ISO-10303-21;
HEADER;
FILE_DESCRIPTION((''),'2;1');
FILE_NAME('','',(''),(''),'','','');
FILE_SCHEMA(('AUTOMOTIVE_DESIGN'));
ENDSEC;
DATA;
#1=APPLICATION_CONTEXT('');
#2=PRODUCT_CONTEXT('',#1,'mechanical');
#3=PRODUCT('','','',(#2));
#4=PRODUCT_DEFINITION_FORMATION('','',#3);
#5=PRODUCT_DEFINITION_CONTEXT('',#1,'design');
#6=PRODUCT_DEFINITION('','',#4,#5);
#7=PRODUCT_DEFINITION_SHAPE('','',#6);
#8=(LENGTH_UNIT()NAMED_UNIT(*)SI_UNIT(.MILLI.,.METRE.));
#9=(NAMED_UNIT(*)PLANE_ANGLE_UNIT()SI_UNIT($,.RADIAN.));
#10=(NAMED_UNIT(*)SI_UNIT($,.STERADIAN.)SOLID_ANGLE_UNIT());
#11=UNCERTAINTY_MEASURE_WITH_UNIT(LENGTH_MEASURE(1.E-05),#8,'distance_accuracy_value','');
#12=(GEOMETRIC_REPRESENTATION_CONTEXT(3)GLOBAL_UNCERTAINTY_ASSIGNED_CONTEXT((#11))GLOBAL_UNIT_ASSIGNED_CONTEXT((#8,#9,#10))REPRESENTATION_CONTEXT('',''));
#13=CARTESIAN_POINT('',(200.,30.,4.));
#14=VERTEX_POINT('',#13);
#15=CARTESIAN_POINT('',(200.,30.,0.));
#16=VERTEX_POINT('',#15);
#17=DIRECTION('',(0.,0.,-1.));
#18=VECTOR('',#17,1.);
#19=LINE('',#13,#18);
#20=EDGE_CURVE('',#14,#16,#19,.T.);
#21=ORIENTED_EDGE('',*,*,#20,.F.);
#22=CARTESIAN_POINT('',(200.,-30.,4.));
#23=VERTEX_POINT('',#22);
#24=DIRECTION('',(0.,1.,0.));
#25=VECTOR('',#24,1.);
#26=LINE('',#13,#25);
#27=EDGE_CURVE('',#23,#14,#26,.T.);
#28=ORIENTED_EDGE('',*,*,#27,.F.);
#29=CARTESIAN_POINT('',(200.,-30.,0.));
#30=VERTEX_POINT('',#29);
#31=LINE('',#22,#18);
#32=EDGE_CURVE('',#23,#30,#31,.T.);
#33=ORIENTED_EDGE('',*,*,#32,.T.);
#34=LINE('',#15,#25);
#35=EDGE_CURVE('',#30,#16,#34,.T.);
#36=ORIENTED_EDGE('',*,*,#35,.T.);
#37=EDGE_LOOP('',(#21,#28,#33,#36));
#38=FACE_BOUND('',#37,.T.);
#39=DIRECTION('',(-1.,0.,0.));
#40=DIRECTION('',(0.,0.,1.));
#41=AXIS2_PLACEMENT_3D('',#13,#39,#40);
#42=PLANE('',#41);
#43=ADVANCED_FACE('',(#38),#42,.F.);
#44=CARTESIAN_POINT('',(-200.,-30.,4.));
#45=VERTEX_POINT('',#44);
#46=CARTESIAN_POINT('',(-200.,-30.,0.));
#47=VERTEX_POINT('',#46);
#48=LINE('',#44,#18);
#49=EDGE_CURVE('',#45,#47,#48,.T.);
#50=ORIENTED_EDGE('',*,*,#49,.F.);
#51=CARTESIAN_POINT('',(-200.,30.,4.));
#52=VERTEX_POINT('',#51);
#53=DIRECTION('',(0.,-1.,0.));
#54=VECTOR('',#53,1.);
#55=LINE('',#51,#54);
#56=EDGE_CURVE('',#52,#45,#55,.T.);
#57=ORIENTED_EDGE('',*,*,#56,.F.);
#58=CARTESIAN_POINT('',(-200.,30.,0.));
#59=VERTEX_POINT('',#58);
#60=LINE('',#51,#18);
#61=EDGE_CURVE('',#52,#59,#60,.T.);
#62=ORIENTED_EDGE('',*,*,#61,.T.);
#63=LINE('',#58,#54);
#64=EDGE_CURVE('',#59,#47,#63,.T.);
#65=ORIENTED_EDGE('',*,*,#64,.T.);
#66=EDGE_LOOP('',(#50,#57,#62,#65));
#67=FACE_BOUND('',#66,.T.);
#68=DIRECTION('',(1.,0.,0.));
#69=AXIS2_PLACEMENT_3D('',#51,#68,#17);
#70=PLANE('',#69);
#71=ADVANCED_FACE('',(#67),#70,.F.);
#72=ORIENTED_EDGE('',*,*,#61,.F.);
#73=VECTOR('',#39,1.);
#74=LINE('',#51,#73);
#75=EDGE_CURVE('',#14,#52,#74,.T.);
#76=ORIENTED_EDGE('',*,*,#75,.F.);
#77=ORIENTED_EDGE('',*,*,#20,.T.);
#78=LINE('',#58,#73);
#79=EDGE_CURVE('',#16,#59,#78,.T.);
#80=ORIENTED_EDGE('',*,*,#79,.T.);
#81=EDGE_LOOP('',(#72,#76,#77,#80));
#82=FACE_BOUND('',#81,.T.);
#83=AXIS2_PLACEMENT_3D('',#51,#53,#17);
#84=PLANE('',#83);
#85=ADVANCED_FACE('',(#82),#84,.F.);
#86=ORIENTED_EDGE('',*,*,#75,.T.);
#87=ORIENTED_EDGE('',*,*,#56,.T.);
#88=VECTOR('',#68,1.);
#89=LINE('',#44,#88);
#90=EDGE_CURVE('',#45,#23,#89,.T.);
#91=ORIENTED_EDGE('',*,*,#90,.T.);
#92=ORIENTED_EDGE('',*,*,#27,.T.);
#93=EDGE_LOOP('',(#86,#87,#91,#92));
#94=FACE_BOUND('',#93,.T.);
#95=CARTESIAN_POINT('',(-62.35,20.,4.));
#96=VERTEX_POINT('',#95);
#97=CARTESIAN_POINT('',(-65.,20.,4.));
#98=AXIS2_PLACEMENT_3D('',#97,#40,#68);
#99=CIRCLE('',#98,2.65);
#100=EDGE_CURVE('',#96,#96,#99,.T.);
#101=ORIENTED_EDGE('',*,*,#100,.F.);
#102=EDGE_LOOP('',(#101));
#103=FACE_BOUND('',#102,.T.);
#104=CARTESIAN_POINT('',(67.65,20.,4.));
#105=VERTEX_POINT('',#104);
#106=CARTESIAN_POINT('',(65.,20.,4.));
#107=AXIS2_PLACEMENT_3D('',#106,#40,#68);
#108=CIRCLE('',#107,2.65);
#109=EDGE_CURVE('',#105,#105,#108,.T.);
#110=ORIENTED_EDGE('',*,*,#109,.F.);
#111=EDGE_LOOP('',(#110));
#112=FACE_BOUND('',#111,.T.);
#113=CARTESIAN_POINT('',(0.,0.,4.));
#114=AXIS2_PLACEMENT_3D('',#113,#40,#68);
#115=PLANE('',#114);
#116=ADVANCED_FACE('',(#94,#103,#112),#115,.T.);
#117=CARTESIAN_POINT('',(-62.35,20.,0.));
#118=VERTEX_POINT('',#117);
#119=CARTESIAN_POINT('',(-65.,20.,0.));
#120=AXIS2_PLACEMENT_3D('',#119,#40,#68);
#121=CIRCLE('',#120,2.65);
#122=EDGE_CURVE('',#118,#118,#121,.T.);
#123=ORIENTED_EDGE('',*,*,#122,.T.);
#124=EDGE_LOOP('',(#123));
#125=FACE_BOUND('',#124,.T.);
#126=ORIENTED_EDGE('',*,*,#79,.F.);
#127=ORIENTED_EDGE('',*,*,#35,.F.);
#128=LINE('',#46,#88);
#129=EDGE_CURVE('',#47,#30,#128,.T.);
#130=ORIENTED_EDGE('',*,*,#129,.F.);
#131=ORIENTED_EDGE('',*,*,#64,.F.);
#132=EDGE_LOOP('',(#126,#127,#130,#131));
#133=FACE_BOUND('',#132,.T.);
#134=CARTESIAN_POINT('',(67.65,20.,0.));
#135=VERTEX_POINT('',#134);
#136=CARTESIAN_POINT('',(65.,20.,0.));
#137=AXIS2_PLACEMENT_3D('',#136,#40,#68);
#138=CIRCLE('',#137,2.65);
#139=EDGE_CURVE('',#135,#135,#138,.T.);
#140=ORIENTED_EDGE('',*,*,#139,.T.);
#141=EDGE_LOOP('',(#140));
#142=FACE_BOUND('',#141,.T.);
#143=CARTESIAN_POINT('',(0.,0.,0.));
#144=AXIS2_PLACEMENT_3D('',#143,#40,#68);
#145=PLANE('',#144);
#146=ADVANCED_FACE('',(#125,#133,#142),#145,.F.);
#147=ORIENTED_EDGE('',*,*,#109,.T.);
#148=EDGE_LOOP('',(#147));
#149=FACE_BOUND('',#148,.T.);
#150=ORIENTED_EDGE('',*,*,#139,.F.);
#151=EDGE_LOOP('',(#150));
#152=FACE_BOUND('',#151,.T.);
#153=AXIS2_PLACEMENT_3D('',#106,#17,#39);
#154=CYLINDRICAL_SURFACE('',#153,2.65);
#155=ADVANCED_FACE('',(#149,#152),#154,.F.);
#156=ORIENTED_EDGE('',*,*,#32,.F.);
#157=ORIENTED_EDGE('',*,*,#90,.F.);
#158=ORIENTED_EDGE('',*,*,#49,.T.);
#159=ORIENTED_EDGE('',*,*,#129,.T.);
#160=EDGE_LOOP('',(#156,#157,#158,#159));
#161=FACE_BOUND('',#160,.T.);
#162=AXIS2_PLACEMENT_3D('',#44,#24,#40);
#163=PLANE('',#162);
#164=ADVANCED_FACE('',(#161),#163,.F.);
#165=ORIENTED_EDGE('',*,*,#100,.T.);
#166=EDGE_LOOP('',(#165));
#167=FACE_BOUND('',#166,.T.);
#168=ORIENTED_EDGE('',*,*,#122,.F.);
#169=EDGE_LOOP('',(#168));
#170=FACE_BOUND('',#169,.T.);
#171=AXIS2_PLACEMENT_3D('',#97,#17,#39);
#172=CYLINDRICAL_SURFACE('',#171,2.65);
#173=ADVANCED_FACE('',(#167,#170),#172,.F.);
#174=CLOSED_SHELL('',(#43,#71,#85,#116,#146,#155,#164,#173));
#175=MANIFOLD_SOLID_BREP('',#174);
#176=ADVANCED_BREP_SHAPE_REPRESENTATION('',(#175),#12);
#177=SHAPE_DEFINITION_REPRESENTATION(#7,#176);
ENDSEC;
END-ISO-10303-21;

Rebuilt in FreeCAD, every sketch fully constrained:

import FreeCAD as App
import Part
import Sketcher

V = App.Vector
Q = App.Units.Quantity


def add_polygon(sketch, points):
    """Adds a closed chain of lines whose ends are joined by coincident constraints."""
    first, n = sketch.GeometryCount, len(points)
    for a, b in zip(points, points[1:] + points[:1]):
        sketch.addGeometry(Part.LineSegment(App.Vector(*a, 0), App.Vector(*b, 0)), False)
    for i in range(n):
        sketch.addConstraint(Sketcher.Constraint("Coincident", first + i, 2, first + (i + 1) % n, 1))

doc = App.newDocument("Part")
body = doc.addObject("PartDesign::Body", "Body")

# Sketch on XY plane
sketch1 = body.newObject("Sketcher::SketchObject", "Sketch")
sketch1.AttachmentSupport = (doc.getObject("XY_Plane"), [""])
sketch1.MapMode = "FlatFace"
add_polygon(sketch1, [(-200, 30), (-200, -30), (200, -30), (200, 30)])  # lines 0-3
sketch1.addGeometry(Part.Circle(V(-65, 20, 0), V(0, 0, 1), 2.6), False)  # 4
sketch1.addGeometry(Part.Circle(V(65, 20, 0), V(0, 0, 1), 2.6), False)  # 5
sketch1.addConstraint([
    Sketcher.Constraint("Vertical", 0),
    Sketcher.Constraint("Horizontal", 1),
    Sketcher.Constraint("Vertical", 2),
    Sketcher.Constraint("Horizontal", 3),
    Sketcher.Constraint("Equal", 4, 5),
    Sketcher.Constraint("Symmetric", 0, 2, 2, 2, -1, 1),
    Sketcher.Constraint("Symmetric", 4, 3, 5, 3, -2),
    Sketcher.Constraint("Diameter", 4, Q("5.3 mm")),
    Sketcher.Constraint("DistanceX", 1, 1, 1, 2, Q("400 mm")),
    Sketcher.Constraint("DistanceY", 0, 2, 0, 1, Q("60 mm")),
    Sketcher.Constraint("DistanceX", 4, 3, -1, 1, Q("65 mm")),
    Sketcher.Constraint("DistanceY", -1, 1, 4, 3, Q("20 mm")),
])
pad1 = body.newObject("PartDesign::Pad", "Pad")
pad1.Profile = sketch1
pad1.Length = 4

doc.recompute()
